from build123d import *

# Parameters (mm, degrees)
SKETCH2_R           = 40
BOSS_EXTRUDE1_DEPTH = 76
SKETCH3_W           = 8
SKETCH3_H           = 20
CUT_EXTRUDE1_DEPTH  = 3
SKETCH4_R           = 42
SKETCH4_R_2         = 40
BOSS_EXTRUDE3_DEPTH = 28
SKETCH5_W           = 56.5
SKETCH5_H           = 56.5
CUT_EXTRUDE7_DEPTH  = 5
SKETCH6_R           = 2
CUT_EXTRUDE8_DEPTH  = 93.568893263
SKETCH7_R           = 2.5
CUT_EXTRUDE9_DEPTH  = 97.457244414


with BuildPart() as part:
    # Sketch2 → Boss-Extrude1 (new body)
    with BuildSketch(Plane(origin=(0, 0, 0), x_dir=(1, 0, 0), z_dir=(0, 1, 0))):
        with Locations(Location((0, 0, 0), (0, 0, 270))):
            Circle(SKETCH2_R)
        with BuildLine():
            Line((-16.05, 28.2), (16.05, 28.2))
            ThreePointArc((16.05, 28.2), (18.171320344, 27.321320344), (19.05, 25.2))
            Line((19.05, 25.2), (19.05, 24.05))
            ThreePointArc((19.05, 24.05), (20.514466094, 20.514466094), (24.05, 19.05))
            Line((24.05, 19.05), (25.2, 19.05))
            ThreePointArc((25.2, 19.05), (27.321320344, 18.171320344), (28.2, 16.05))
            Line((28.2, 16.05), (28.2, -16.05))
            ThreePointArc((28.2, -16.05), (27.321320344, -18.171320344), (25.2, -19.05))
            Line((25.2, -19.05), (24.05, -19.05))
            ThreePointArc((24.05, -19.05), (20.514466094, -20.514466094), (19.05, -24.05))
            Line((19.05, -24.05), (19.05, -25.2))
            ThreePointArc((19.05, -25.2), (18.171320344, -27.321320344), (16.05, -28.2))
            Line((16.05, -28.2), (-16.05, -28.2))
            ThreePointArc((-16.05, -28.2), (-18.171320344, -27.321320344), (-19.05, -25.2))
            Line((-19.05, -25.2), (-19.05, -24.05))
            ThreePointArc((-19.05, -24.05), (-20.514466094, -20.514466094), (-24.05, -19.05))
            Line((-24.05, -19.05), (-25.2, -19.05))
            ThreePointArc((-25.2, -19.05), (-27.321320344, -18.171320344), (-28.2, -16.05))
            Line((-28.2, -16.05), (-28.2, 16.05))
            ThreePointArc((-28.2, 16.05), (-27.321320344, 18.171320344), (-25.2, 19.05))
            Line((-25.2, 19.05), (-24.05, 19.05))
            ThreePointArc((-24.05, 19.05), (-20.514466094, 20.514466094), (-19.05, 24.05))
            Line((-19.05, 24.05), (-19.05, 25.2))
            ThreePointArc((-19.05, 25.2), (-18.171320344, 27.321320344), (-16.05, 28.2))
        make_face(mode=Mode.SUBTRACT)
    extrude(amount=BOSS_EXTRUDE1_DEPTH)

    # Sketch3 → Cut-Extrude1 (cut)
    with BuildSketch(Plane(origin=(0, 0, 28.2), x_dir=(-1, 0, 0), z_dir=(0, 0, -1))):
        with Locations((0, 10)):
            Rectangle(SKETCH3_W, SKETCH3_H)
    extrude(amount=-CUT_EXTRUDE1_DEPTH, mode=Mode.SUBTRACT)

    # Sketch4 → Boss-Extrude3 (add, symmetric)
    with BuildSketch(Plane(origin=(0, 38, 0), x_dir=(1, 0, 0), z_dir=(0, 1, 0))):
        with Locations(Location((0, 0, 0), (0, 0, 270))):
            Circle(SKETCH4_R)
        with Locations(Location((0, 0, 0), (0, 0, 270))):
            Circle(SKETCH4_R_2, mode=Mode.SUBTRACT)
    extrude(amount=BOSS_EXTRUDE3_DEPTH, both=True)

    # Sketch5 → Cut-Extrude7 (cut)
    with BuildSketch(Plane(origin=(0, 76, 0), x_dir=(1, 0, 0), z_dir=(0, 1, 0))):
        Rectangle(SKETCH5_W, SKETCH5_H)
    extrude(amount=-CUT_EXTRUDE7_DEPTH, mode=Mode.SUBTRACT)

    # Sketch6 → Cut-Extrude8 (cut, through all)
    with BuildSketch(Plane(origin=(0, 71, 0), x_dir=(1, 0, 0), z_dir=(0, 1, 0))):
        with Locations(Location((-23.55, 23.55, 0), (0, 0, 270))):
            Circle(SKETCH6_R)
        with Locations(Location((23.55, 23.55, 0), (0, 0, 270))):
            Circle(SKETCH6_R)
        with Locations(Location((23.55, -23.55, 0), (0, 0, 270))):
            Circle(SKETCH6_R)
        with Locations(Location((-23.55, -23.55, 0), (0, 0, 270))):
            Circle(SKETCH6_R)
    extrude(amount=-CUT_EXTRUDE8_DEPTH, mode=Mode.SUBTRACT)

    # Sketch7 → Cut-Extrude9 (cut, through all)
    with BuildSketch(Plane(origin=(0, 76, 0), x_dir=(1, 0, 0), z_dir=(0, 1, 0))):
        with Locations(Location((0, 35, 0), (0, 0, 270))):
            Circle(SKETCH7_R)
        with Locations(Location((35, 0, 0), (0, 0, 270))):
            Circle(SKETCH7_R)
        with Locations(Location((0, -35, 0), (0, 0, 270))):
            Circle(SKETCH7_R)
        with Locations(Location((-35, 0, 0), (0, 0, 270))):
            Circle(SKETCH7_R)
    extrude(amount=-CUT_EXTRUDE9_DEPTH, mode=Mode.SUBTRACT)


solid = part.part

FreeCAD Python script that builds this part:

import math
import FreeCAD as App
import Part
import Sketcher
from FreeCAD import Vector
Q = App.Units.Quantity

doc = App.newDocument("Part")
params = doc.addObject("Spreadsheet::Sheet", "Params")
for row, (alias, value) in enumerate([
    ("sketch1_diameter", "80 mm"),
    ("sketch1_radius", "3 mm"),
    ("sketch1_radius2", "5 mm"),
    ("sketch1_width", "32.1 mm"),
    ("sketch1_width2", "1.15 mm"),
    ("pad1_length", "76 mm"),
    ("sketch2_width", "8 mm"),
    ("sketch2_height", "20 mm"),
    ("pocket1_length", "3 mm"),
    ("sketch3_diameter", "84 mm"),
    ("sketch3_diameter2", "80 mm"),
    ("pad2_length", "56 mm"),
    ("sketch4_width", "56.5 mm"),
    ("pocket2_length", "5 mm"),
    ("sketch5_diameter", "4 mm"),
    ("sketch6_diameter", "5 mm"),
], start=1):
    params.set(f"A{row}", alias)
    params.set(f"B{row}", "=" + value)
    params.setAlias(f"B{row}", alias)

body = doc.addObject("PartDesign::Body", "Body")

sketch1 = body.newObject("Sketcher::SketchObject", "Sketch")
sketch1.AttachmentSupport = (doc.getObject("XZ_Plane"), [""])
sketch1.MapMode = "FlatFace"
sketch1.addGeometry([
    Part.Circle(Vector(0, 0, 0), Vector(0, 0, 1), 40),
    Part.ArcOfCircle(Part.Circle(Vector(-16.1, -25.2, 0), Vector(0, 0, 1), 3), math.radians(180), math.radians(270)),
    Part.LineSegment(Vector(-16.1, -28.2, 0), Vector(16.1, -28.2, 0)),
    Part.ArcOfCircle(Part.Circle(Vector(16.1, -25.2, 0), Vector(0, 0, 1), 3), math.radians(-90), math.radians(0)),
    Part.LineSegment(Vector(19.1, -25.2, 0), Vector(19.1, -24.1, 0)),
    Part.ArcOfCircle(Part.Circle(Vector(24.1, -24.1, 0), Vector(0, 0, 1), 5), math.radians(90), math.radians(180)),
    Part.LineSegment(Vector(24.1, -19.1, 0), Vector(25.2, -19.1, 0)),
    Part.ArcOfCircle(Part.Circle(Vector(25.2, -16.1, 0), Vector(0, 0, 1), 3), math.radians(-90), math.radians(0)),
    Part.LineSegment(Vector(28.2, -16.1, 0), Vector(28.2, 16.1, 0)),
    Part.ArcOfCircle(Part.Circle(Vector(25.2, 16.1, 0), Vector(0, 0, 1), 3), math.radians(0), math.radians(90)),
    Part.LineSegment(Vector(25.2, 19.1, 0), Vector(24.1, 19.1, 0)),
    Part.ArcOfCircle(Part.Circle(Vector(24.1, 24.1, 0), Vector(0, 0, 1), 5), math.radians(180), math.radians(270)),
    Part.LineSegment(Vector(19.1, 24.1, 0), Vector(19.1, 25.2, 0)),
    Part.ArcOfCircle(Part.Circle(Vector(16.1, 25.2, 0), Vector(0, 0, 1), 3), math.radians(0), math.radians(90)),
    Part.LineSegment(Vector(16.1, 28.2, 0), Vector(-16.1, 28.2, 0)),
    Part.ArcOfCircle(Part.Circle(Vector(-16.1, 25.2, 0), Vector(0, 0, 1), 3), math.radians(90), math.radians(180)),
    Part.LineSegment(Vector(-19.1, 25.2, 0), Vector(-19.1, 24.1, 0)),
    Part.ArcOfCircle(Part.Circle(Vector(-24.1, 24.1, 0), Vector(0, 0, 1), 5), math.radians(-90), math.radians(0)),
    Part.LineSegment(Vector(-24.1, 19.1, 0), Vector(-25.2, 19.1, 0)),
    Part.ArcOfCircle(Part.Circle(Vector(-25.2, 16.1, 0), Vector(0, 0, 1), 3), math.radians(90), math.radians(180)),
    Part.LineSegment(Vector(-28.2, 16.1, 0), Vector(-28.2, -16.1, 0)),
    Part.ArcOfCircle(Part.Circle(Vector(-25.2, -16.1, 0), Vector(0, 0, 1), 3), math.radians(180), math.radians(270)),
    Part.LineSegment(Vector(-25.2, -19.1, 0), Vector(-24.1, -19.1, 0)),
    Part.ArcOfCircle(Part.Circle(Vector(-24.1, -24.1, 0), Vector(0, 0, 1), 5), math.radians(0), math.radians(90)),
    Part.LineSegment(Vector(-19.1, -24.1, 0), Vector(-19.1, -25.2, 0)),
], False)
sketch1.addConstraint([
    Sketcher.Constraint("Tangent", 1, 2, 2, 1),
    Sketcher.Constraint("Tangent", 2, 2, 3, 1),
    Sketcher.Constraint("Tangent", 3, 2, 4, 1),
    Sketcher.Constraint("Tangent", 4, 2, 5, 2),
    Sketcher.Constraint("Tangent", 5, 1, 6, 1),
    Sketcher.Constraint("Tangent", 6, 2, 7, 1),
    Sketcher.Constraint("Tangent", 7, 2, 8, 1),
    Sketcher.Constraint("Tangent", 8, 2, 9, 1),
    Sketcher.Constraint("Tangent", 9, 2, 10, 1),
    Sketcher.Constraint("Tangent", 10, 2, 11, 2),
    Sketcher.Constraint("Tangent", 11, 1, 12, 1),
    Sketcher.Constraint("Tangent", 12, 2, 13, 1),
    Sketcher.Constraint("Tangent", 13, 2, 14, 1),
    Sketcher.Constraint("Tangent", 14, 2, 15, 1),
    Sketcher.Constraint("Tangent", 15, 2, 16, 1),
    Sketcher.Constraint("Tangent", 16, 2, 17, 2),
    Sketcher.Constraint("Tangent", 17, 1, 18, 1),
    Sketcher.Constraint("Tangent", 18, 2, 19, 1),
    Sketcher.Constraint("Tangent", 19, 2, 20, 1),
    Sketcher.Constraint("Tangent", 20, 2, 21, 1),
    Sketcher.Constraint("Tangent", 21, 2, 22, 1),
    Sketcher.Constraint("Tangent", 22, 2, 23, 2),
    Sketcher.Constraint("Tangent", 23, 1, 24, 1),
    Sketcher.Constraint("Tangent", 24, 2, 1, 1),
    Sketcher.Constraint("Horizontal", 2),
    Sketcher.Constraint("Vertical", 4),
    Sketcher.Constraint("Horizontal", 6),
    Sketcher.Constraint("Vertical", 8),
    Sketcher.Constraint("Horizontal", 10),
    Sketcher.Constraint("Vertical", 12),
    Sketcher.Constraint("Horizontal", 14),
    Sketcher.Constraint("Vertical", 16),
    Sketcher.Constraint("Horizontal", 18),
    Sketcher.Constraint("Vertical", 20),
    Sketcher.Constraint("Horizontal", 22),
    Sketcher.Constraint("Vertical", 24),
    Sketcher.Constraint("Coincident", 0, 3, -1, 1),
    Sketcher.Constraint("Equal", 1, 3),
    Sketcher.Constraint("Equal", 3, 7),
    Sketcher.Constraint("Equal", 7, 9),
    Sketcher.Constraint("Equal", 5, 11),
    Sketcher.Constraint("Equal", 9, 13),
    Sketcher.Constraint("Equal", 13, 15),
    Sketcher.Constraint("Equal", 11, 17),
    Sketcher.Constraint("Equal", 15, 19),
    Sketcher.Constraint("Equal", 19, 21),
    Sketcher.Constraint("Equal", 17, 23),
    Sketcher.Constraint("Symmetric", 1, 3, 13, 3, -1, 1),
    Sketcher.Constraint("Symmetric", 5, 3, 17, 3, -1, 1),
    Sketcher.Constraint("Symmetric", 9, 3, 21, 3, -1, 1),
    Sketcher.Constraint("Symmetric", 11, 3, 17, 3, -2),
    Sketcher.Constraint("Equal", 22, 4),
    Sketcher.Constraint("Equal", 14, 8),
    Sketcher.Constraint("Diameter", 0, Q("80 mm")),
    Sketcher.Constraint("Radius", 1, Q("3 mm")),
    Sketcher.Constraint("Radius", 5, Q("5 mm")),
    Sketcher.Constraint("DistanceX", 2, 1, 2, 2, Q("32.1 mm")),
    Sketcher.Constraint("DistanceX", 6, 1, 6, 2, Q("1.15 mm")),
])
sketch1.setExpression("Constraints[53]", "Params.sketch1_diameter")
sketch1.setExpression("Constraints[54]", "Params.sketch1_radius")
sketch1.setExpression("Constraints[55]", "Params.sketch1_radius2")
sketch1.setExpression("Constraints[56]", "Params.sketch1_width")
sketch1.setExpression("Constraints[57]", "Params.sketch1_width2")
pad1 = body.newObject("PartDesign::Pad", "Pad")
pad1.Profile = sketch1
pad1.setExpression("Length", "Params.pad1_length")
pad1.Reversed = True

sketch2 = body.newObject("Sketcher::SketchObject", "Sketch001")
sketch2.AttachmentSupport = (doc.getObject("XY_Plane"), [""])
sketch2.MapMode = "FlatFace"
sketch2.AttachmentOffset = App.Placement(Vector(0, 0, 28.2), App.Rotation())
sketch2.addGeometry([
    Part.LineSegment(Vector(4, 20, 0), Vector(4, 0, 0)),
    Part.LineSegment(Vector(4, 0, 0), Vector(-4, 0, 0)),
    Part.LineSegment(Vector(-4, 0, 0), Vector(-4, 20, 0)),
    Part.LineSegment(Vector(-4, 20, 0), Vector(4, 20, 0)),
], False)
sketch2.addConstraint([
    Sketcher.Constraint("Coincident", 0, 2, 1, 1),
    Sketcher.Constraint("Coincident", 1, 2, 2, 1),
    Sketcher.Constraint("Coincident", 2, 2, 3, 1),
    Sketcher.Constraint("Coincident", 3, 2, 0, 1),
    Sketcher.Constraint("Vertical", 0),
    Sketcher.Constraint("Horizontal", 1),
    Sketcher.Constraint("Vertical", 2),
    Sketcher.Constraint("Horizontal", 3),
    Sketcher.Constraint("Symmetric", 0, 2, 1, 2, -1, 1),
    Sketcher.Constraint("DistanceX", 1, 2, 1, 1, Q("8 mm")),
    Sketcher.Constraint("DistanceY", 0, 2, 0, 1, Q("20 mm")),
])
sketch2.setExpression("Constraints[9]", "Params.sketch2_width")
sketch2.setExpression("Constraints[10]", "Params.sketch2_height")
pocket1 = body.newObject("PartDesign::Pocket", "Pocket")
pocket1.Profile = sketch2
pocket1.setExpression("Length", "Params.pocket1_length")
pocket1.Reversed = True

sketch3 = body.newObject("Sketcher::SketchObject", "Sketch002")
sketch3.AttachmentSupport = (doc.getObject("XZ_Plane"), [""])
sketch3.MapMode = "FlatFace"
sketch3.AttachmentOffset = App.Placement(Vector(0, 0, -38), App.Rotation())
sketch3.addGeometry([
    Part.Circle(Vector(0, 0, 0), Vector(0, 0, 1), 42),
    Part.Circle(Vector(0, 0, 0), Vector(0, 0, 1), 40),
], False)
sketch3.addConstraint([
    Sketcher.Constraint("Coincident", 0, 3, -1, 1),
    Sketcher.Constraint("Coincident", 1, 3, -1, 1),
    Sketcher.Constraint("Diameter", 0, Q("84 mm")),
    Sketcher.Constraint("Diameter", 1, Q("80 mm")),
])
sketch3.setExpression("Constraints[2]", "Params.sketch3_diameter")
sketch3.setExpression("Constraints[3]", "Params.sketch3_diameter2")
pad2 = body.newObject("PartDesign::Pad", "Pad001")
pad2.Profile = sketch3
pad2.setExpression("Length", "Params.pad2_length")
pad2.Midplane = True

sketch4 = body.newObject("Sketcher::SketchObject", "Sketch003")
sketch4.AttachmentSupport = (doc.getObject("XZ_Plane"), [""])
sketch4.MapMode = "FlatFace"
sketch4.AttachmentOffset = App.Placement(Vector(0, 0, -76), App.Rotation())
sketch4.addGeometry([
    Part.LineSegment(Vector(-28, -28, 0), Vector(-28, 28, 0)),
    Part.LineSegment(Vector(-28, 28, 0), Vector(28, 28, 0)),
    Part.LineSegment(Vector(28, 28, 0), Vector(28, -28, 0)),
    Part.LineSegment(Vector(28, -28, 0), Vector(-28, -28, 0)),
], False)
sketch4.addConstraint([
    Sketcher.Constraint("Coincident", 0, 2, 1, 1),
    Sketcher.Constraint("Coincident", 1, 2, 2, 1),
    Sketcher.Constraint("Coincident", 2, 2, 3, 1),
    Sketcher.Constraint("Coincident", 3, 2, 0, 1),
    Sketcher.Constraint("Vertical", 0),
    Sketcher.Constraint("Horizontal", 1),
    Sketcher.Constraint("Vertical", 2),
    Sketcher.Constraint("Horizontal", 3),
    Sketcher.Constraint("Symmetric", 0, 2, 2, 2, -1, 1),
    Sketcher.Constraint("Equal", 3, 0),
    Sketcher.Constraint("DistanceX", 1, 1, 1, 2, Q("56.5 mm")),
])
sketch4.setExpression("Constraints[10]", "Params.sketch4_width")
pocket2 = body.newObject("PartDesign::Pocket", "Pocket001")
pocket2.Profile = sketch4
pocket2.setExpression("Length", "Params.pocket2_length")
pocket2.Reversed = True

sketch5 = body.newObject("Sketcher::SketchObject", "Sketch004")
sketch5.AttachmentSupport = (doc.getObject("XZ_Plane"), [""])
sketch5.MapMode = "FlatFace"
sketch5.AttachmentOffset = App.Placement(Vector(0, 0, -71), App.Rotation())
sketch5.addGeometry([
    Part.Circle(Vector(-23.6, -23.6, 0), Vector(0, 0, 1), 2),
    Part.Circle(Vector(23.6, -23.6, 0), Vector(0, 0, 1), 2),
    Part.Circle(Vector(23.6, 23.6, 0), Vector(0, 0, 1), 2),
    Part.Circle(Vector(-23.6, 23.6, 0), Vector(0, 0, 1), 2),
], False)
sketch5.addConstraint([
    Sketcher.Constraint("Equal", 0, 1),
    Sketcher.Constraint("Equal", 1, 2),
    Sketcher.Constraint("Equal", 2, 3),
    Sketcher.Constraint("Symmetric", 0, 3, 2, 3, -1, 1),
    Sketcher.Constraint("Symmetric", 1, 3, 3, 3, -1, 1),
    Sketcher.Constraint("Symmetric", 0, 3, 1, 3, -2),
    Sketcher.Constraint("Diameter", 0, Q("4 mm")),
    Sketcher.Constraint("DistanceX", 0, 3, 1, 3, Q("47.1 mm")),
    Sketcher.Constraint("DistanceY", 1, 3, 2, 3, Q("47.1 mm")),
])
sketch5.setExpression("Constraints[6]", "Params.sketch5_diameter")
pocket3 = body.newObject("PartDesign::Pocket", "Pocket002")
pocket3.Profile = sketch5
pocket3.Type = "ThroughAll"
pocket3.Reversed = True

sketch6 = body.newObject("Sketcher::SketchObject", "Sketch005")
sketch6.AttachmentSupport = (doc.getObject("XZ_Plane"), [""])
sketch6.MapMode = "FlatFace"
sketch6.AttachmentOffset = App.Placement(Vector(0, 0, -76), App.Rotation())
sketch6.addGeometry([
    Part.Circle(Vector(0, -35, 0), Vector(0, 0, 1), 2.5),
    Part.Circle(Vector(35, 0, 0), Vector(0, 0, 1), 2.5),
    Part.Circle(Vector(0, 35, 0), Vector(0, 0, 1), 2.5),
    Part.Circle(Vector(-35, 0, 0), Vector(0, 0, 1), 2.5),
], False)
sketch6.addConstraint([
    Sketcher.Constraint("Equal", 0, 1),
    Sketcher.Constraint("Equal", 1, 2),
    Sketcher.Constraint("Equal", 2, 3),
    Sketcher.Constraint("Symmetric", 0, 3, 2, 3, -1, 1),
    Sketcher.Constraint("Symmetric", 1, 3, 3, 3, -1, 1),
    Sketcher.Constraint("PointOnObject", 0, 3, -2),
    Sketcher.Constraint("PointOnObject", 1, 3, -1),
    Sketcher.Constraint("Diameter", 0, Q("5 mm")),
    Sketcher.Constraint("DistanceY", 0, 3, -1, 1, Q("35 mm")),
    Sketcher.Constraint("DistanceX", -1, 1, 1, 3, Q("35 mm")),
])
sketch6.setExpression("Constraints[7]", "Params.sketch6_diameter")
pocket4 = body.newObject("PartDesign::Pocket", "Pocket003")
pocket4.Profile = sketch6
pocket4.Type = "ThroughAll"
pocket4.Reversed = True

doc.recompute()
